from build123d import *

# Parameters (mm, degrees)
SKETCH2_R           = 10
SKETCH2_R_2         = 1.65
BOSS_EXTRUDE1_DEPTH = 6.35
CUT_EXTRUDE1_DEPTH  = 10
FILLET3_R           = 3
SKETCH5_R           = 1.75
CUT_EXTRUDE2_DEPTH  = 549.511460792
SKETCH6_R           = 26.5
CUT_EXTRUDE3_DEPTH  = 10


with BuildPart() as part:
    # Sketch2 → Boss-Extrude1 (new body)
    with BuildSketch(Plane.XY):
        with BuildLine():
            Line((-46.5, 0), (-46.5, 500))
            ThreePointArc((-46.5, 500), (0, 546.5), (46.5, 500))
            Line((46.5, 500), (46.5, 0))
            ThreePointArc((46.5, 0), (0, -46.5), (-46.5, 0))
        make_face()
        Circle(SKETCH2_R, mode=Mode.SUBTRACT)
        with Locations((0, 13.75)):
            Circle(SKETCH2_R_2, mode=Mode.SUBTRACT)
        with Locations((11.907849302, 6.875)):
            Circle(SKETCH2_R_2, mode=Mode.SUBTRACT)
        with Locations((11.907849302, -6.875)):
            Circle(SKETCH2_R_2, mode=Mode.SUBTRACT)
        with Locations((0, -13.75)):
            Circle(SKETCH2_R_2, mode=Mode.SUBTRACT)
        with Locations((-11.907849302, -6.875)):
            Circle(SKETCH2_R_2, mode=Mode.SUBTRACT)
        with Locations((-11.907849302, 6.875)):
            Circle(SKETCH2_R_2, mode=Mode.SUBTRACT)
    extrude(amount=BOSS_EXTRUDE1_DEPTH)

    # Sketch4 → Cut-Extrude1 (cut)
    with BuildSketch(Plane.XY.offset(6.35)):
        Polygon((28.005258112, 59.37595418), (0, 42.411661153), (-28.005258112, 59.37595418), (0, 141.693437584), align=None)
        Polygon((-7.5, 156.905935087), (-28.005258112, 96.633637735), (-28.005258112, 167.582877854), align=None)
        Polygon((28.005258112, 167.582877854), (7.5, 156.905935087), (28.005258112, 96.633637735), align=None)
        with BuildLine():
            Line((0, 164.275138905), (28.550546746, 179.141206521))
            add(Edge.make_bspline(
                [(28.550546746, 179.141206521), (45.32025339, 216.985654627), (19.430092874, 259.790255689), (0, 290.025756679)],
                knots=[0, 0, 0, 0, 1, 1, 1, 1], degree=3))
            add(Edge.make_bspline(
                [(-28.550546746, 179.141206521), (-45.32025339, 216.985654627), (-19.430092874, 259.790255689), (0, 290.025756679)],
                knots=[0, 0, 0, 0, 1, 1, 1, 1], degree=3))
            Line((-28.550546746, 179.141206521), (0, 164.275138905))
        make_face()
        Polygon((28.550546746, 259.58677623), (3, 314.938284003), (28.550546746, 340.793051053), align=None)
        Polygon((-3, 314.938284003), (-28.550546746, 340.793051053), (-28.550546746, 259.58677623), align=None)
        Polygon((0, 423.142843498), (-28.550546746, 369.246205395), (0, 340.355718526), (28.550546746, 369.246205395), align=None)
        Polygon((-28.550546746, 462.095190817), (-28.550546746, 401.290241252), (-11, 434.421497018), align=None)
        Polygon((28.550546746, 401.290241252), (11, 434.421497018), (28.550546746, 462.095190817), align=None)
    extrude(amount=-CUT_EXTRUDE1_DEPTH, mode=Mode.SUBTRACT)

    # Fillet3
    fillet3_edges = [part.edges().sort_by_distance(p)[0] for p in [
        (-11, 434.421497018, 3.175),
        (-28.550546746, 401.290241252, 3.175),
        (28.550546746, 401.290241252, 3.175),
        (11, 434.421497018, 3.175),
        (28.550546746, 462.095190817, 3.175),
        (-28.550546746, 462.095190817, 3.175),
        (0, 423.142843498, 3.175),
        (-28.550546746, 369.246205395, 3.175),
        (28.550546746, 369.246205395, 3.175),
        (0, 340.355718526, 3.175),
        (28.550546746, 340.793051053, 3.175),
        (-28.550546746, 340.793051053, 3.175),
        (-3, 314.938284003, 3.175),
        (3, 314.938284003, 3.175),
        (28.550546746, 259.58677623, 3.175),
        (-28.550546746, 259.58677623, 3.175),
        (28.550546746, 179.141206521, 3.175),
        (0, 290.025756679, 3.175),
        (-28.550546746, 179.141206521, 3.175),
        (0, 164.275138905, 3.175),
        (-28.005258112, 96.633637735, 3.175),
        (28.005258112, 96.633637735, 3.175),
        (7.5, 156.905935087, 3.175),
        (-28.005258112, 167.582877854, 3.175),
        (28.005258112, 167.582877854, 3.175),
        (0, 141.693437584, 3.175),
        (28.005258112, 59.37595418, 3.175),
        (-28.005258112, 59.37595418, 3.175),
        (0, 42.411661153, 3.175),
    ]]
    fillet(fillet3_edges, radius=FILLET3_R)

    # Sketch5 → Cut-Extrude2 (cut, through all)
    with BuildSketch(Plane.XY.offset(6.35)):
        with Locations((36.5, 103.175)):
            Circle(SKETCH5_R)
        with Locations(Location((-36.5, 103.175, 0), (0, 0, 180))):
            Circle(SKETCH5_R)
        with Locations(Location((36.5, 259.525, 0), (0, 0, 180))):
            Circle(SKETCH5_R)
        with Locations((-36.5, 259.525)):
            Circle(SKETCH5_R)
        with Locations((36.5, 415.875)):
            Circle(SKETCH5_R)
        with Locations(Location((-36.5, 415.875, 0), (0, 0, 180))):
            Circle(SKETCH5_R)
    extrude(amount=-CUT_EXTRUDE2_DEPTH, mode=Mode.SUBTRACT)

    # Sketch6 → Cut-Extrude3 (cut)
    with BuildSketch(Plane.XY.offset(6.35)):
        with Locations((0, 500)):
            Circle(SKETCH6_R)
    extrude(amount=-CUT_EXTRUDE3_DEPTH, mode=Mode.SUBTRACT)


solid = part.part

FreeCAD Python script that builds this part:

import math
import FreeCAD as App
import Part
import Sketcher
from FreeCAD import Vector


def edges_at(feature, points):
    """Names of the edges that pass closest to the given points."""
    edges = feature.Shape.Edges
    near = lambda p: min(range(len(edges)), key=lambda i: edges[i].distToShape(Part.Vertex(*p))[0])
    return sorted({f"Edge{near(p) + 1}" for p in points})

doc = App.newDocument("Part")
body = doc.addObject("PartDesign::Body", "Body")

sketch1 = doc.addObject("Sketcher::SketchObject", "Sketch")
body.addObject(sketch1)
sketch1.AttachmentSupport = (doc.XY_Plane, [""])
sketch1.MapMode = "FlatFace"
sketch1.addGeometry(Part.LineSegment(Vector(-46.5, 500, 0), Vector(-46.5, 0, 0)), False)
sketch1.addGeometry(Part.ArcOfCircle(Part.Circle(Vector(0, 0, 0), Vector(0, 0, 1), 46.5), math.radians(180), math.radians(360)), False)
sketch1.addGeometry(Part.LineSegment(Vector(46.5, 0, 0), Vector(46.5, 500, 0)), False)
sketch1.addGeometry(Part.ArcOfCircle(Part.Circle(Vector(0, 500, 0), Vector(0, 0, 1), 46.5), math.radians(0), math.radians(180)), False)
sketch1.addGeometry(Part.Circle(Vector(11.907849, -6.875, 0), Vector(0, 0, 1), 1.65), False)
sketch1.addGeometry(Part.Circle(Vector(0, -13.75, 0), Vector(0, 0, 1), 1.65), False)
sketch1.addGeometry(Part.Circle(Vector(0, 0, 0), Vector(0, 0, 1), 10), False)
sketch1.addGeometry(Part.Circle(Vector(-11.907849, -6.875, 0), Vector(0, 0, 1), 1.65), False)
sketch1.addGeometry(Part.Circle(Vector(11.907849, 6.875, 0), Vector(0, 0, 1), 1.65), False)
sketch1.addGeometry(Part.Circle(Vector(-11.907849, 6.875, 0), Vector(0, 0, 1), 1.65), False)
sketch1.addGeometry(Part.Circle(Vector(0, 13.75, 0), Vector(0, 0, 1), 1.65), False)
sketch1.addConstraint(Sketcher.Constraint("Tangent", 0, 2, 1, 1))
sketch1.addConstraint(Sketcher.Constraint("Tangent", 1, 2, 2, 1))
sketch1.addConstraint(Sketcher.Constraint("Tangent", 2, 2, 3, 1))
sketch1.addConstraint(Sketcher.Constraint("Tangent", 3, 2, 0, 1))
sketch1.addConstraint(Sketcher.Constraint("Vertical", 0))
sketch1.addConstraint(Sketcher.Constraint("Vertical", 2))
sketch1.addConstraint(Sketcher.Constraint("Coincident", 1, 3, -1, 1))
sketch1.addConstraint(Sketcher.Constraint("Coincident", 6, 3, -1, 1))
sketch1.addConstraint(Sketcher.Constraint("Equal", 4, 5))
sketch1.addConstraint(Sketcher.Constraint("Equal", 5, 7))
sketch1.addConstraint(Sketcher.Constraint("Equal", 7, 8))
sketch1.addConstraint(Sketcher.Constraint("Equal", 8, 9))
sketch1.addConstraint(Sketcher.Constraint("Equal", 9, 10))
sketch1.addConstraint(Sketcher.Constraint("Symmetric", 7, 3, 8, 3, -1, 1))
sketch1.addConstraint(Sketcher.Constraint("Symmetric", 4, 3, 9, 3, -1, 1))
sketch1.addConstraint(Sketcher.Constraint("Symmetric", 5, 3, 10, 3, -1, 1))
sketch1.addConstraint(Sketcher.Constraint("Symmetric", 4, 3, 7, 3, -2))
sketch1.addConstraint(Sketcher.Constraint("PointOnObject", 5, 3, -2))
sketch1.addConstraint(Sketcher.Constraint("Diameter", 6, 20.0))
sketch1.addConstraint(Sketcher.Constraint("Diameter", 4, 3.3))
sketch1.addConstraint(Sketcher.Constraint("Radius", 1, 46.5))
sketch1.addConstraint(Sketcher.Constraint("DistanceY", 0, 2, 0, 1, 500.0))
sketch1.addConstraint(Sketcher.Constraint("DistanceY", 5, 3, -1, 1, 13.75))
sketch1.addConstraint(Sketcher.Constraint("DistanceY", 4, 3, 8, 3, 13.75))
sketch1.addConstraint(Sketcher.Constraint("DistanceX", 7, 3, 4, 3, 23.815699))
pad1 = doc.addObject("PartDesign::Pad", "Pad")
body.addObject(pad1)
pad1.Profile = sketch1
pad1.Length = 6.35

sketch2 = doc.addObject("Sketcher::SketchObject", "Sketch001")
body.addObject(sketch2)
sketch2.AttachmentSupport = (doc.XY_Plane, [""])
sketch2.MapMode = "FlatFace"
sketch2.AttachmentOffset = App.Placement(Vector(0, 0, 6.35), App.Rotation())
sketch2.addGeometry(Part.LineSegment(Vector(0, 42.411661, 0), Vector(28.005258, 59.375954, 0)), False)
sketch2.addGeometry(Part.LineSegment(Vector(28.005258, 59.375954, 0), Vector(0, 141.693438, 0)), False)
sketch2.addGeometry(Part.LineSegment(Vector(0, 141.693438, 0), Vector(-28.005258, 59.375954, 0)), False)
sketch2.addGeometry(Part.LineSegment(Vector(-28.005258, 59.375954, 0), Vector(0, 42.411661, 0)), False)
sketch2.addGeometry(Part.LineSegment(Vector(-28.005258, 96.633638, 0), Vector(-7.5, 156.905935, 0)), False)
sketch2.addGeometry(Part.LineSegment(Vector(-7.5, 156.905935, 0), Vector(-28.005258, 167.582878, 0)), False)
sketch2.addGeometry(Part.LineSegment(Vector(-28.005258, 167.582878, 0), Vector(-28.005258, 96.633638, 0)), False)
sketch2.addGeometry(Part.LineSegment(Vector(28.005258, 167.582878, 0), Vector(7.5, 156.905935, 0)), False)
sketch2.addGeometry(Part.LineSegment(Vector(7.5, 156.905935, 0), Vector(28.005258, 96.633638, 0)), False)
sketch2.addGeometry(Part.LineSegment(Vector(28.005258, 96.633638, 0), Vector(28.005258, 167.582878, 0)), False)
sketch2.addGeometry(Part.LineSegment(Vector(0, 164.275139, 0), Vector(28.550547, 179.141207, 0)), False)
sketch2.addGeometry(Part.BSplineCurve([Vector(28.550547, 179.141207, 0), Vector(45.320253, 216.985655, 0), Vector(19.430093, 259.790256, 0), Vector(0, 290.025757, 0)], [4, 4], [0, 1], False, 3, [1, 1, 1, 1], False), False)
sketch2.addGeometry(Part.BSplineCurve([Vector(-28.550547, 179.141207, 0), Vector(-45.320253, 216.985655, 0), Vector(-19.430093, 259.790256, 0), Vector(0, 290.025757, 0)], [4, 4], [0, 1], False, 3, [1, 1, 1, 1], False), False)
sketch2.addGeometry(Part.LineSegment(Vector(-28.550547, 179.141207, 0), Vector(0, 164.275139, 0)), False)
sketch2.addGeometry(Part.LineSegment(Vector(3, 314.938284, 0), Vector(28.550547, 259.586776, 0)), False)
sketch2.addGeometry(Part.LineSegment(Vector(28.550547, 259.586776, 0), Vector(28.550547, 340.793051, 0)), False)
sketch2.addGeometry(Part.LineSegment(Vector(28.550547, 340.793051, 0), Vector(3, 314.938284, 0)), False)
sketch2.addGeometry(Part.LineSegment(Vector(-3, 314.938284, 0), Vector(-28.550547, 340.793051, 0)), False)
sketch2.addGeometry(Part.LineSegment(Vector(-28.550547, 340.793051, 0), Vector(-28.550547, 259.586776, 0)), False)
sketch2.addGeometry(Part.LineSegment(Vector(-28.550547, 259.586776, 0), Vector(-3, 314.938284, 0)), False)
sketch2.addGeometry(Part.LineSegment(Vector(0, 423.142843, 0), Vector(-28.550547, 369.246205, 0)), False)
sketch2.addGeometry(Part.LineSegment(Vector(-28.550547, 369.246205, 0), Vector(0, 340.355719, 0)), False)
sketch2.addGeometry(Part.LineSegment(Vector(0, 340.355719, 0), Vector(28.550547, 369.246205, 0)), False)
sketch2.addGeometry(Part.LineSegment(Vector(28.550547, 369.246205, 0), Vector(0, 423.142843, 0)), False)
sketch2.addGeometry(Part.LineSegment(Vector(-28.550547, 462.095191, 0), Vector(-28.550547, 401.290241, 0)), False)
sketch2.addGeometry(Part.LineSegment(Vector(-28.550547, 401.290241, 0), Vector(-11, 434.421497, 0)), False)
sketch2.addGeometry(Part.LineSegment(Vector(-11, 434.421497, 0), Vector(-28.550547, 462.095191, 0)), False)
sketch2.addGeometry(Part.LineSegment(Vector(11, 434.421497, 0), Vector(28.550547, 401.290241, 0)), False)
sketch2.addGeometry(Part.LineSegment(Vector(28.550547, 401.290241, 0), Vector(28.550547, 462.095191, 0)), False)
sketch2.addGeometry(Part.LineSegment(Vector(28.550547, 462.095191, 0), Vector(11, 434.421497, 0)), False)
sketch2.addConstraint(Sketcher.Constraint("Block", 11))
sketch2.addConstraint(Sketcher.Constraint("Block", 12))
sketch2.addConstraint(Sketcher.Constraint("Coincident", 0, 2, 1, 1))
sketch2.addConstraint(Sketcher.Constraint("Coincident", 1, 2, 2, 1))
sketch2.addConstraint(Sketcher.Constraint("Coincident", 2, 2, 3, 1))
sketch2.addConstraint(Sketcher.Constraint("Coincident", 3, 2, 0, 1))
sketch2.addConstraint(Sketcher.Constraint("Coincident", 4, 2, 5, 1))
sketch2.addConstraint(Sketcher.Constraint("Coincident", 5, 2, 6, 1))
sketch2.addConstraint(Sketcher.Constraint("Coincident", 6, 2, 4, 1))
sketch2.addConstraint(Sketcher.Constraint("Coincident", 7, 2, 8, 1))
sketch2.addConstraint(Sketcher.Constraint("Coincident", 8, 2, 9, 1))
sketch2.addConstraint(Sketcher.Constraint("Coincident", 9, 2, 7, 1))
sketch2.addConstraint(Sketcher.Constraint("Coincident", 10, 2, 11, 1))
sketch2.addConstraint(Sketcher.Constraint("Coincident", 12, 1, 13, 1))
sketch2.addConstraint(Sketcher.Constraint("Coincident", 13, 2, 10, 1))
sketch2.addConstraint(Sketcher.Constraint("Coincident", 14, 2, 15, 1))
sketch2.addConstraint(Sketcher.Constraint("Coincident", 15, 2, 16, 1))
sketch2.addConstraint(Sketcher.Constraint("Coincident", 16, 2, 14, 1))
sketch2.addConstraint(Sketcher.Constraint("Coincident", 17, 2, 18, 1))
sketch2.addConstraint(Sketcher.Constraint("Coincident", 18, 2, 19, 1))
sketch2.addConstraint(Sketcher.Constraint("Coincident", 19, 2, 17, 1))
sketch2.addConstraint(Sketcher.Constraint("Coincident", 20, 2, 21, 1))
sketch2.addConstraint(Sketcher.Constraint("Coincident", 21, 2, 22, 1))
sketch2.addConstraint(Sketcher.Constraint("Coincident", 22, 2, 23, 1))
sketch2.addConstraint(Sketcher.Constraint("Coincident", 23, 2, 20, 1))
sketch2.addConstraint(Sketcher.Constraint("Coincident", 24, 2, 25, 1))
sketch2.addConstraint(Sketcher.Constraint("Coincident", 25, 2, 26, 1))
sketch2.addConstraint(Sketcher.Constraint("Coincident", 26, 2, 24, 1))
sketch2.addConstraint(Sketcher.Constraint("Coincident", 27, 2, 28, 1))
sketch2.addConstraint(Sketcher.Constraint("Coincident", 28, 2, 29, 1))
sketch2.addConstraint(Sketcher.Constraint("Coincident", 29, 2, 27, 1))
sketch2.addConstraint(Sketcher.Constraint("Vertical", 6))
sketch2.addConstraint(Sketcher.Constraint("Vertical", 9))
sketch2.addConstraint(Sketcher.Constraint("Vertical", 15))
sketch2.addConstraint(Sketcher.Constraint("Vertical", 18))
sketch2.addConstraint(Sketcher.Constraint("Vertical", 24))
sketch2.addConstraint(Sketcher.Constraint("Vertical", 28))
sketch2.addConstraint(Sketcher.Constraint("Symmetric", 0, 2, 2, 2, -2))
sketch2.addConstraint(Sketcher.Constraint("Symmetric", 4, 2, 7, 2, -2))
sketch2.addConstraint(Sketcher.Constraint("Symmetric", 6, 2, 8, 2, -2))
sketch2.addConstraint(Sketcher.Constraint("Symmetric", 15, 2, 17, 2, -2))
sketch2.addConstraint(Sketcher.Constraint("Symmetric", 16, 2, 19, 2, -2))
sketch2.addConstraint(Sketcher.Constraint("Symmetric", 20, 2, 22, 2, -2))
sketch2.addConstraint(Sketcher.Constraint("Symmetric", 24, 2, 27, 2, -2))
sketch2.addConstraint(Sketcher.Constraint("Symmetric", 25, 2, 29, 2, -2))
sketch2.addConstraint(Sketcher.Constraint("PointOnObject", 1, 2, -2))
sketch2.addConstraint(Sketcher.Constraint("PointOnObject", 3, 2, -2))
sketch2.addConstraint(Sketcher.Constraint("PointOnObject", 13, 2, -2))
sketch2.addConstraint(Sketcher.Constraint("PointOnObject", 21, 2, -2))
sketch2.addConstraint(Sketcher.Constraint("PointOnObject", 23, 2, -2))
sketch2.addConstraint(Sketcher.Constraint("Parallel", 2, 4))
sketch2.addConstraint(Sketcher.Constraint("Parallel", 7, 10))
sketch2.addConstraint(Sketcher.Constraint("Parallel", 5, 13))
sketch2.addConstraint(Sketcher.Constraint("Parallel", 17, 21))
sketch2.addConstraint(Sketcher.Constraint("Parallel", 20, 25))
sketch2.addConstraint(Sketcher.Constraint("Horizontal", 14, 2, 18, 2))
sketch2.addConstraint(Sketcher.Constraint("Horizontal", 26, 2, 28, 2))
sketch2.addConstraint(Sketcher.Constraint("Vertical", 2, 2, 5, 2))
sketch2.addConstraint(Sketcher.Constraint("Vertical", 10, 2, 14, 2))
sketch2.addConstraint(Sketcher.Constraint("Vertical", 18, 2, 20, 2))
sketch2.addConstraint(Sketcher.Constraint("Vertical", 20, 2, 24, 2))
sketch2.addConstraint(Sketcher.Constraint("DistanceX", -1, 1, 16, 2, 3.0))
sketch2.addConstraint(Sketcher.Constraint("DistanceX", 25, 2, -1, 1, 11.0))
sketch2.addConstraint(Sketcher.Constraint("DistanceX", 4, 2, 7, 2, 15.0))
sketch2.addConstraint(Sketcher.Constraint("DistanceY", 6, 2, 6, 1, 70.94924))
sketch2.addConstraint(Sketcher.Constraint("DistanceY", 24, 2, 24, 1, 60.80495))
sketch2.addConstraint(Sketcher.Constraint("DistanceY", 6, 2, 1, 2, 45.0598))
sketch2.addConstraint(Sketcher.Constraint("DistanceY", 1, 2, 13, 2, 22.581701))
sketch2.addConstraint(Sketcher.Constraint("DistanceY", 9, 2, 14, 2, 92.003898))
sketch2.addConstraint(Sketcher.Constraint("Distance", 0, 32.742659))
sketch2.addConstraint(Sketcher.Constraint("Distance", 1, 86.95092))
sketch2.addConstraint(Sketcher.Constraint("Distance", 4, 63.664868))
sketch2.addConstraint(Sketcher.Constraint("Distance", 20, 60.99165))
sketch2.addConstraint(Sketcher.Constraint("DistanceY", 15, 1, 15, 2, 81.206275))
sketch2.addConstraint(Sketcher.Constraint("DistanceY", -1, 1, 21, 2, 340.355719))
sketch2.addConstraint(Sketcher.Constraint("DistanceY", -1, 1, 24, 2, 401.290241))
sketch2.addConstraint(Sketcher.Constraint("DistanceY", 19, 2, 20, 2, 54.307921))
pocket1 = doc.addObject("PartDesign::Pocket", "Pocket")
body.addObject(pocket1)
pocket1.Profile = sketch2
pocket1.Length = 10
doc.recompute()

fillet = doc.addObject("PartDesign::Fillet", "Fillet")
body.addObject(fillet)
fillet.Base = (pocket1, edges_at(pocket1, [
    (-11, 434.421, 3.175),
    (-28.551, 401.29, 3.175),
    (28.551, 401.29, 3.175),
    (11, 434.421, 3.175),
    (28.551, 462.095, 3.175),
    (-28.551, 462.095, 3.175),
    (0, 423.143, 3.175),
    (-28.551, 369.246, 3.175),
    (28.551, 369.246, 3.175),
    (0, 340.356, 3.175),
    (28.551, 340.793, 3.175),
    (-28.551, 340.793, 3.175),
    (-3, 314.938, 3.175),
    (3, 314.938, 3.175),
    (28.551, 259.587, 3.175),
    (-28.551, 259.587, 3.175),
    (28.551, 179.141, 3.175),
    (0, 290.026, 3.175),
    (-28.551, 179.141, 3.175),
    (0, 164.275, 3.175),
    (-28.005, 96.634, 3.175),
    (28.005, 96.634, 3.175),
    (7.5, 156.906, 3.175),
    (-28.005, 167.583, 3.175),
    (28.005, 167.583, 3.175),
    (0, 141.693, 3.175),
    (28.005, 59.376, 3.175),
    (-28.005, 59.376, 3.175),
    (0, 42.412, 3.175),
]))
fillet.Radius = 3

sketch3 = doc.addObject("Sketcher::SketchObject", "Sketch002")
body.addObject(sketch3)
sketch3.AttachmentSupport = (doc.XY_Plane, [""])
sketch3.MapMode = "FlatFace"
sketch3.AttachmentOffset = App.Placement(Vector(0, 0, 6.35), App.Rotation())
sketch3.addGeometry(Part.Circle(Vector(36.5, 103.175, 0), Vector(0, 0, 1), 1.75), False)
sketch3.addGeometry(Part.Circle(Vector(-36.5, 103.175, 0), Vector(0, 0, 1), 1.75), False)
sketch3.addGeometry(Part.Circle(Vector(36.5, 259.525, 0), Vector(0, 0, 1), 1.75), False)
sketch3.addGeometry(Part.Circle(Vector(-36.5, 259.525, 0), Vector(0, 0, 1), 1.75), False)
sketch3.addGeometry(Part.Circle(Vector(36.5, 415.875, 0), Vector(0, 0, 1), 1.75), False)
sketch3.addGeometry(Part.Circle(Vector(-36.5, 415.875, 0), Vector(0, 0, 1), 1.75), False)
sketch3.addConstraint(Sketcher.Constraint("Equal", 0, 1))
sketch3.addConstraint(Sketcher.Constraint("Equal", 1, 2))
sketch3.addConstraint(Sketcher.Constraint("Equal", 2, 3))
sketch3.addConstraint(Sketcher.Constraint("Equal", 3, 4))
sketch3.addConstraint(Sketcher.Constraint("Equal", 4, 5))
sketch3.addConstraint(Sketcher.Constraint("Symmetric", 0, 3, 1, 3, -2))
sketch3.addConstraint(Sketcher.Constraint("Symmetric", 2, 3, 3, 3, -2))
sketch3.addConstraint(Sketcher.Constraint("Symmetric", 4, 3, 5, 3, -2))
sketch3.addConstraint(Sketcher.Constraint("Vertical", 0, 3, 2, 3))
sketch3.addConstraint(Sketcher.Constraint("Vertical", 2, 3, 4, 3))
sketch3.addConstraint(Sketcher.Constraint("Diameter", 0, 3.5))
sketch3.addConstraint(Sketcher.Constraint("DistanceX", 1, 3, 0, 3, 73.0))
sketch3.addConstraint(Sketcher.Constraint("DistanceY", 0, 3, 4, 3, 312.7))
sketch3.addConstraint(Sketcher.Constraint("DistanceY", 0, 3, 2, 3, 156.35))
sketch3.addConstraint(Sketcher.Constraint("DistanceY", -1, 1, 0, 3, 103.175))
pocket2 = doc.addObject("PartDesign::Pocket", "Pocket001")
body.addObject(pocket2)
pocket2.Profile = sketch3
pocket2.Type = "ThroughAll"

sketch4 = doc.addObject("Sketcher::SketchObject", "Sketch003")
body.addObject(sketch4)
sketch4.AttachmentSupport = (doc.XY_Plane, [""])
sketch4.MapMode = "FlatFace"
sketch4.AttachmentOffset = App.Placement(Vector(0, 0, 6.35), App.Rotation())
sketch4.addGeometry(Part.Circle(Vector(0, 500, 0), Vector(0, 0, 1), 26.5), False)
sketch4.addConstraint(Sketcher.Constraint("PointOnObject", 0, 3, -2))
sketch4.addConstraint(Sketcher.Constraint("Diameter", 0, 53.0))
sketch4.addConstraint(Sketcher.Constraint("DistanceY", -1, 1, 0, 3, 500.0))
pocket3 = doc.addObject("PartDesign::Pocket", "Pocket002")
body.addObject(pocket3)
pocket3.Profile = sketch4
pocket3.Length = 10

doc.recompute()
